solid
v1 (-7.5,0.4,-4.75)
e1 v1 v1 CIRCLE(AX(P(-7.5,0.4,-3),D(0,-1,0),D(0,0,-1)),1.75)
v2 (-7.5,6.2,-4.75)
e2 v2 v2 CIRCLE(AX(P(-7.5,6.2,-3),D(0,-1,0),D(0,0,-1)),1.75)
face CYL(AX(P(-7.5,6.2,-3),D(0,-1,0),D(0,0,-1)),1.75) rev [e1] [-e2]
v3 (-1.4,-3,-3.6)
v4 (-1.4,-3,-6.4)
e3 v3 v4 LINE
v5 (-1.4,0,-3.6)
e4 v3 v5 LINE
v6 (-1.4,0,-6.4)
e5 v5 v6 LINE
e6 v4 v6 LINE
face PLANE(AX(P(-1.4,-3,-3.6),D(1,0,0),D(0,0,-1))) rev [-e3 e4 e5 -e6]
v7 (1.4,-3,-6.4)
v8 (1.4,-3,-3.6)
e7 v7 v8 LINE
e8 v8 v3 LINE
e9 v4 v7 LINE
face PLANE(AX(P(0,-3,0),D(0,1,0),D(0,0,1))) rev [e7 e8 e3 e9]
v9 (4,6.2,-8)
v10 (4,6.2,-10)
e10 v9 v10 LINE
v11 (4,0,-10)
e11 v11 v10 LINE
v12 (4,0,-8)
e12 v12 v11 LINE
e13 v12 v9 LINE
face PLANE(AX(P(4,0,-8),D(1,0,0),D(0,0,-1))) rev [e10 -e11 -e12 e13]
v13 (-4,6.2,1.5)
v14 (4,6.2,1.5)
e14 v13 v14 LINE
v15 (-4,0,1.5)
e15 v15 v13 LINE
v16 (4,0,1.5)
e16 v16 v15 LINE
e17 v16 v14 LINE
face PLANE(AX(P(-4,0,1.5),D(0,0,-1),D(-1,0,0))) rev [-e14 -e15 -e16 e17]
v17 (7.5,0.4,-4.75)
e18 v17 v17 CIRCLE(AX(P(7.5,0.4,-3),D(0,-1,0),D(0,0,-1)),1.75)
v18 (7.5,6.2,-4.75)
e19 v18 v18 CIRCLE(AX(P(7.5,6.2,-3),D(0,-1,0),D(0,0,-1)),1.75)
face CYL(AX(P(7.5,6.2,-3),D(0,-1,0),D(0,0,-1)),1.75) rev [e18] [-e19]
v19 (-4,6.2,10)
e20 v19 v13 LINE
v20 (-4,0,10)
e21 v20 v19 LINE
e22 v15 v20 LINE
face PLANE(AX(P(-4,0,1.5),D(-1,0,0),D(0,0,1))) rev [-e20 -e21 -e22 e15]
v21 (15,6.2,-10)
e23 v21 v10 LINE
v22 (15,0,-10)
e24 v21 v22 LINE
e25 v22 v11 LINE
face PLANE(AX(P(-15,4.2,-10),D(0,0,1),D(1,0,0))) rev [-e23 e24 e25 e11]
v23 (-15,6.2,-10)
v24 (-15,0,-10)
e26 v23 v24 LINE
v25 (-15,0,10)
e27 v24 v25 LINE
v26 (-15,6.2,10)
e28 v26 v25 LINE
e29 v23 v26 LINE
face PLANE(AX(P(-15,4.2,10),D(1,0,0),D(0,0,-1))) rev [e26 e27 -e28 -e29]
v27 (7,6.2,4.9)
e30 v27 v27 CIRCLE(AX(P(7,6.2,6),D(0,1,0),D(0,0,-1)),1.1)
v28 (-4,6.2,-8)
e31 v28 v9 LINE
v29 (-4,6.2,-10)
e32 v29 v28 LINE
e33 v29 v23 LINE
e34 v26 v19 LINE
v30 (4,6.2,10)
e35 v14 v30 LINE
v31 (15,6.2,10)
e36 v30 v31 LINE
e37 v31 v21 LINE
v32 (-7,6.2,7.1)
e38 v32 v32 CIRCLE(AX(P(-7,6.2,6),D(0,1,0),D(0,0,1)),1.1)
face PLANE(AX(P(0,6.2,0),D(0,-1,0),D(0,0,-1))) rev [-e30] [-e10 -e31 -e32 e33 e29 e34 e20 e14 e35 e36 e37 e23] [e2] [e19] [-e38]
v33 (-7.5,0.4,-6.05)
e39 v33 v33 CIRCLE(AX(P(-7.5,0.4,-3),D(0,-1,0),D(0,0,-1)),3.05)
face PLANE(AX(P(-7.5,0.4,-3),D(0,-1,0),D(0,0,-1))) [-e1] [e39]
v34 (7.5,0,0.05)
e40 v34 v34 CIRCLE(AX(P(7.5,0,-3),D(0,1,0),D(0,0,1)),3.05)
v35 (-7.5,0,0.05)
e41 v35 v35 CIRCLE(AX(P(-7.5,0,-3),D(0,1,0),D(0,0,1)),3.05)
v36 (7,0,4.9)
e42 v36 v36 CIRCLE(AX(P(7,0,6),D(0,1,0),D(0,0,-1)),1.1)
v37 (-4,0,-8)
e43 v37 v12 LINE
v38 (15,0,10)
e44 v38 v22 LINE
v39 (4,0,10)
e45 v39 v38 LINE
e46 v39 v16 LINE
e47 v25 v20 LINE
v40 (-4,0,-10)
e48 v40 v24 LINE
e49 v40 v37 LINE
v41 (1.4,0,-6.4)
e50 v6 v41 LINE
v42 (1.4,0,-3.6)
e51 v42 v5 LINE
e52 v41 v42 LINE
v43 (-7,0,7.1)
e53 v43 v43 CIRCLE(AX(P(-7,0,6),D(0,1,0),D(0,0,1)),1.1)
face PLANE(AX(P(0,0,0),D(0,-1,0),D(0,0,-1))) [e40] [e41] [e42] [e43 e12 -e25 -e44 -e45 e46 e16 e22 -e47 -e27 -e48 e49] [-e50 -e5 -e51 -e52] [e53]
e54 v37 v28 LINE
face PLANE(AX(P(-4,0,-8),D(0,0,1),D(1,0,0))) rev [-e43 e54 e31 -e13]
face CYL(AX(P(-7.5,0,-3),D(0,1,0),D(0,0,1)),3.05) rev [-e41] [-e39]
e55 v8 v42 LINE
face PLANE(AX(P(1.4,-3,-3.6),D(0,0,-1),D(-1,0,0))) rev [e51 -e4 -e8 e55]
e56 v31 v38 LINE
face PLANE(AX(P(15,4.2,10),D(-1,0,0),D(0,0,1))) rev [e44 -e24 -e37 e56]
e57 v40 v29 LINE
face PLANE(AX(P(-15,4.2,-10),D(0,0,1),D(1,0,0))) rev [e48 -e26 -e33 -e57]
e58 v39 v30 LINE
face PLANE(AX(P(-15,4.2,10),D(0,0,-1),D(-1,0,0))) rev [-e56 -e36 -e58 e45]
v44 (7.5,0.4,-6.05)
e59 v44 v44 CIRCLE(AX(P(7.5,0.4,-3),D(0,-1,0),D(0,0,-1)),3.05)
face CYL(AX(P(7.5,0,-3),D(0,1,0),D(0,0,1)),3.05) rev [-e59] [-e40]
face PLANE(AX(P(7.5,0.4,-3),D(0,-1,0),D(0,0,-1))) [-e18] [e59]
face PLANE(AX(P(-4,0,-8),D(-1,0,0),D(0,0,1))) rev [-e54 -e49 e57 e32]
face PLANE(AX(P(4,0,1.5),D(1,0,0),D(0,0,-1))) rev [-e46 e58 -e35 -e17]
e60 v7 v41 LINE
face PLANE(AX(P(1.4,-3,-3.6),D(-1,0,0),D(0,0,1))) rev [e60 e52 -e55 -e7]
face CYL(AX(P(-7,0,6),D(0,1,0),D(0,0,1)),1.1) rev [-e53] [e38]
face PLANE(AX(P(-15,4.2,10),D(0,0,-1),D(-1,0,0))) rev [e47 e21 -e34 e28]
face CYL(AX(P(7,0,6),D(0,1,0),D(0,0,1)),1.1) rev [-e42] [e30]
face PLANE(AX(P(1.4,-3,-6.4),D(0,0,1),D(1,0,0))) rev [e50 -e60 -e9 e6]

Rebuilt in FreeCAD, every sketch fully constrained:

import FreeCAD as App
import Part
import Sketcher

V = App.Vector
Q = App.Units.Quantity


def add_polygon(sketch, points):
    """Adds a closed chain of lines whose ends are joined by coincident constraints."""
    first, n = sketch.GeometryCount, len(points)
    for a, b in zip(points, points[1:] + points[:1]):
        sketch.addGeometry(Part.LineSegment(App.Vector(*a, 0), App.Vector(*b, 0)), False)
    for i in range(n):
        sketch.addConstraint(Sketcher.Constraint("Coincident", first + i, 2, first + (i + 1) % n, 1))

doc = App.newDocument("Part")
body = doc.addObject("PartDesign::Body", "Body")

# Sketch on XZ plane
sketch1 = body.newObject("Sketcher::SketchObject", "Sketch")
sketch1.AttachmentSupport = (doc.getObject("XZ_Plane"), [""])
sketch1.MapMode = "FlatFace"
add_polygon(sketch1, [(-15, -10), (-15, 10), (15, 10), (15, -10)])  # lines 0-3
sketch1.addConstraint([
    Sketcher.Constraint("Vertical", 0),
    Sketcher.Constraint("Horizontal", 1),
    Sketcher.Constraint("Vertical", 2),
    Sketcher.Constraint("Horizontal", 3),
    Sketcher.Constraint("Symmetric", 0, 2, 2, 2, -1, 1),
    Sketcher.Constraint("DistanceX", 1, 1, 1, 2, Q("30 mm")),
    Sketcher.Constraint("DistanceY", 0, 1, 0, 2, Q("20 mm")),
])
pad1 = body.newObject("PartDesign::Pad", "Pad")
pad1.Profile = sketch1
pad1.Length = 4.2
pad1.Reversed = True

# Sketch on XZ plane
sketch2 = body.newObject("Sketcher::SketchObject", "Sketch001")
sketch2.AttachmentSupport = (doc.getObject("XZ_Plane"), [""])
sketch2.MapMode = "FlatFace"
sketch2.AttachmentOffset = App.Placement(V(0, 0, -4.2), App.Rotation())
sketch2.addGeometry([
    Part.Circle(V(-7.5, -3, 0), V(0, 0, 1), 3),
    Part.Circle(V(7.5, -3, 0), V(0, 0, 1), 3),
], False)
sketch2.addConstraint([
    Sketcher.Constraint("Equal", 0, 1),
    Sketcher.Constraint("Symmetric", 0, 3, 1, 3, -2),
    Sketcher.Constraint("Diameter", 0, Q("6.1 mm")),
    Sketcher.Constraint("DistanceY", 0, 3, -1, 1, Q("3 mm")),
    Sketcher.Constraint("DistanceX", 0, 3, 1, 3, Q("15 mm")),
])
pocket1 = body.newObject("PartDesign::Pocket", "Pocket")
pocket1.Profile = sketch2
pocket1.Type = "ThroughAll"
pocket1.Reversed = True

# Sketch on XZ plane
sketch3 = body.newObject("Sketcher::SketchObject", "Sketch002")
sketch3.AttachmentSupport = (doc.getObject("XZ_Plane"), [""])
sketch3.MapMode = "FlatFace"
sketch3.AttachmentOffset = App.Placement(V(0, 0, -4.2), App.Rotation())
add_polygon(sketch3, [(-4, 2), (-4, 10), (4, 10), (4, 2)])  # lines 0-3
sketch3.addConstraint([
    Sketcher.Constraint("Vertical", 0),
    Sketcher.Constraint("Horizontal", 1),
    Sketcher.Constraint("Vertical", 2),
    Sketcher.Constraint("Horizontal", 3),
    Sketcher.Constraint("DistanceX", 1, 1, 1, 2, Q("8 mm")),
    Sketcher.Constraint("DistanceY", 0, 1, 0, 2, Q("8.5 mm")),
    Sketcher.Constraint("DistanceX", 0, 2, -1, 1, Q("4 mm")),
    Sketcher.Constraint("DistanceY", -1, 1, 0, 2, Q("10 mm")),
])
pocket2 = body.newObject("PartDesign::Pocket", "Pocket001")
pocket2.Profile = sketch3
pocket2.Type = "ThroughAll"
pocket2.Reversed = True

# Sketch on XZ plane
sketch4 = body.newObject("Sketcher::SketchObject", "Sketch003")
sketch4.AttachmentSupport = (doc.getObject("XZ_Plane"), [""])
sketch4.MapMode = "FlatFace"
sketch4.AttachmentOffset = App.Placement(V(0, 0, -4.2), App.Rotation())
add_polygon(sketch4, [(-4, 2), (4, 2), (4, 10), (15, 10), (15, -10), (-15, -10), (-15, 10), (-4, 10)])  # lines 0-7
sketch4.addConstraint([
    Sketcher.Constraint("Horizontal", 0),
    Sketcher.Constraint("Vertical", 1),
    Sketcher.Constraint("Horizontal", 2),
    Sketcher.Constraint("Vertical", 3),
    Sketcher.Constraint("Horizontal", 4),
    Sketcher.Constraint("Vertical", 5),
    Sketcher.Constraint("Horizontal", 6),
    Sketcher.Constraint("Vertical", 7),
    Sketcher.Constraint("Symmetric", 2, 2, 4, 2, -1, 1),
    Sketcher.Constraint("Symmetric", 1, 2, 6, 2, -2),
    Sketcher.Constraint("DistanceX", 0, 1, 0, 2, Q("8 mm")),
    Sketcher.Constraint("DistanceX", 2, 1, 2, 2, Q("11 mm")),
    Sketcher.Constraint("DistanceY", 3, 2, 3, 1, Q("20 mm")),
    Sketcher.Constraint("DistanceY", 1, 1, 1, 2, Q("8.5 mm")),
])
pad2 = body.newObject("PartDesign::Pad", "Pad001")
pad2.Profile = sketch4
pad2.Length = 2
pad2.Reversed = True

# Sketch on XZ plane
sketch5 = body.newObject("Sketcher::SketchObject", "Sketch004")
sketch5.AttachmentSupport = (doc.getObject("XZ_Plane"), [""])
sketch5.MapMode = "FlatFace"
sketch5.AttachmentOffset = App.Placement(V(0, 0, -4.2), App.Rotation())
sketch5.addGeometry([
    Part.Circle(V(-7.5, -3, 0), V(0, 0, 1), 1.8),
    Part.Circle(V(7.5, -3, 0), V(0, 0, 1), 1.8),
], False)
sketch5.addConstraint([
    Sketcher.Constraint("Equal", 0, 1),
    Sketcher.Constraint("Symmetric", 0, 3, 1, 3, -2),
    Sketcher.Constraint("Diameter", 0, Q("3.5 mm")),
    Sketcher.Constraint("DistanceY", 0, 3, -1, 1, Q("3 mm")),
    Sketcher.Constraint("DistanceX", 0, 3, 1, 3, Q("15 mm")),
])
pocket3 = body.newObject("PartDesign::Pocket", "Pocket002")
pocket3.Profile = sketch5
pocket3.Type = "ThroughAll"

# Sketch on XZ plane
sketch6 = body.newObject("Sketcher::SketchObject", "Sketch005")
sketch6.AttachmentSupport = (doc.getObject("XZ_Plane"), [""])
sketch6.MapMode = "FlatFace"
sketch6.AttachmentOffset = App.Placement(V(0, 0, -6.2), App.Rotation())
add_polygon(sketch6, [(-4, -10), (-4, -8), (4, -8), (4, -10)])  # lines 0-3
sketch6.addConstraint([
    Sketcher.Constraint("Vertical", 0),
    Sketcher.Constraint("Horizontal", 1),
    Sketcher.Constraint("Vertical", 2),
    Sketcher.Constraint("Horizontal", 3),
    Sketcher.Constraint("DistanceX", 1, 1, 1, 2, Q("8 mm")),
    Sketcher.Constraint("DistanceY", 0, 1, 0, 2, Q("2 mm")),
    Sketcher.Constraint("DistanceX", 0, 2, -1, 1, Q("4 mm")),
    Sketcher.Constraint("DistanceY", 0, 2, -1, 1, Q("8 mm")),
])
pocket4 = body.newObject("PartDesign::Pocket", "Pocket003")
pocket4.Profile = sketch6
pocket4.Type = "ThroughAll"
pocket4.Reversed = True

# Sketch on XZ plane
sketch7 = body.newObject("Sketcher::SketchObject", "Sketch006")
sketch7.AttachmentSupport = (doc.getObject("XZ_Plane"), [""])
sketch7.MapMode = "FlatFace"
sketch7.AttachmentOffset = App.Placement(V(0, 0, -6.2), App.Rotation())
sketch7.addGeometry([
    Part.Circle(V(-7, 6, 0), V(0, 0, 1), 1.1),
    Part.Circle(V(7, 6, 0), V(0, 0, 1), 1.1),
], False)
sketch7.addConstraint([
    Sketcher.Constraint("Equal", 0, 1),
    Sketcher.Constraint("Symmetric", 0, 3, 1, 3, -2),
    Sketcher.Constraint("Diameter", 0, Q("2.2 mm")),
    Sketcher.Constraint("DistanceX", 0, 3, -1, 1, Q("7 mm")),
    Sketcher.Constraint("DistanceY", -1, 1, 0, 3, Q("6 mm")),
])
pocket5 = body.newObject("PartDesign::Pocket", "Pocket004")
pocket5.Profile = sketch7
pocket5.Type = "ThroughAll"
pocket5.Reversed = True

# Sketch on XZ plane
sketch8 = body.newObject("Sketcher::SketchObject", "Sketch007")
sketch8.AttachmentSupport = (doc.getObject("XZ_Plane"), [""])
sketch8.MapMode = "FlatFace"
add_polygon(sketch8, [(-1.4, -3.6), (-1.4, -6.4), (1.4, -6.4), (1.4, -3.6)])  # lines 0-3
sketch8.addConstraint([
    Sketcher.Constraint("Vertical", 0),
    Sketcher.Constraint("Horizontal", 1),
    Sketcher.Constraint("Vertical", 2),
    Sketcher.Constraint("Horizontal", 3),
    Sketcher.Constraint("Equal", 3, 0),
    Sketcher.Constraint("DistanceX", 1, 1, 1, 2, Q("2.8 mm")),
    Sketcher.Constraint("DistanceX", 0, 2, -1, 1, Q("1.4 mm")),
    Sketcher.Constraint("DistanceY", 0, 2, -1, 1, Q("6.4 mm")),
])
pad3 = body.newObject("PartDesign::Pad", "Pad002")
pad3.Profile = sketch8
pad3.Length = 3

# Sketch on XZ plane
sketch9 = body.newObject("Sketcher::SketchObject", "Sketch008")
sketch9.AttachmentSupport = (doc.getObject("XZ_Plane"), [""])
sketch9.MapMode = "FlatFace"
sketch9.AttachmentOffset = App.Placement(V(0, 0, -4.2), App.Rotation())
sketch9.addGeometry([
    Part.Circle(V(7.5, -3, 0), V(0, 0, 1), 3),
    Part.Circle(V(7.5, -3, 0), V(0, 0, 1), 1.8),
    Part.Circle(V(-7.5, -3, 0), V(0, 0, 1), 3),
    Part.Circle(V(-7.5, -3, 0), V(0, 0, 1), 1.8),
], False)
sketch9.addConstraint([
    Sketcher.Constraint("Coincident", 1, 3, 0, 3),
    Sketcher.Constraint("Coincident", 3, 3, 2, 3),
    Sketcher.Constraint("Equal", 0, 2),
    Sketcher.Constraint("Equal", 1, 3),
    Sketcher.Constraint("Symmetric", 0, 3, 2, 3, -2),
    Sketcher.Constraint("Diameter", 0, Q("6.1 mm")),
    Sketcher.Constraint("Diameter", 1, Q("3.5 mm")),
    Sketcher.Constraint("DistanceY", 0, 3, -1, 1, Q("3 mm")),
    Sketcher.Constraint("DistanceX", 2, 3, 0, 3, Q("15 mm")),
])
pad4 = body.newObject("PartDesign::Pad", "Pad003")
pad4.Profile = sketch9
pad4.Length = 3.8

doc.recompute()
